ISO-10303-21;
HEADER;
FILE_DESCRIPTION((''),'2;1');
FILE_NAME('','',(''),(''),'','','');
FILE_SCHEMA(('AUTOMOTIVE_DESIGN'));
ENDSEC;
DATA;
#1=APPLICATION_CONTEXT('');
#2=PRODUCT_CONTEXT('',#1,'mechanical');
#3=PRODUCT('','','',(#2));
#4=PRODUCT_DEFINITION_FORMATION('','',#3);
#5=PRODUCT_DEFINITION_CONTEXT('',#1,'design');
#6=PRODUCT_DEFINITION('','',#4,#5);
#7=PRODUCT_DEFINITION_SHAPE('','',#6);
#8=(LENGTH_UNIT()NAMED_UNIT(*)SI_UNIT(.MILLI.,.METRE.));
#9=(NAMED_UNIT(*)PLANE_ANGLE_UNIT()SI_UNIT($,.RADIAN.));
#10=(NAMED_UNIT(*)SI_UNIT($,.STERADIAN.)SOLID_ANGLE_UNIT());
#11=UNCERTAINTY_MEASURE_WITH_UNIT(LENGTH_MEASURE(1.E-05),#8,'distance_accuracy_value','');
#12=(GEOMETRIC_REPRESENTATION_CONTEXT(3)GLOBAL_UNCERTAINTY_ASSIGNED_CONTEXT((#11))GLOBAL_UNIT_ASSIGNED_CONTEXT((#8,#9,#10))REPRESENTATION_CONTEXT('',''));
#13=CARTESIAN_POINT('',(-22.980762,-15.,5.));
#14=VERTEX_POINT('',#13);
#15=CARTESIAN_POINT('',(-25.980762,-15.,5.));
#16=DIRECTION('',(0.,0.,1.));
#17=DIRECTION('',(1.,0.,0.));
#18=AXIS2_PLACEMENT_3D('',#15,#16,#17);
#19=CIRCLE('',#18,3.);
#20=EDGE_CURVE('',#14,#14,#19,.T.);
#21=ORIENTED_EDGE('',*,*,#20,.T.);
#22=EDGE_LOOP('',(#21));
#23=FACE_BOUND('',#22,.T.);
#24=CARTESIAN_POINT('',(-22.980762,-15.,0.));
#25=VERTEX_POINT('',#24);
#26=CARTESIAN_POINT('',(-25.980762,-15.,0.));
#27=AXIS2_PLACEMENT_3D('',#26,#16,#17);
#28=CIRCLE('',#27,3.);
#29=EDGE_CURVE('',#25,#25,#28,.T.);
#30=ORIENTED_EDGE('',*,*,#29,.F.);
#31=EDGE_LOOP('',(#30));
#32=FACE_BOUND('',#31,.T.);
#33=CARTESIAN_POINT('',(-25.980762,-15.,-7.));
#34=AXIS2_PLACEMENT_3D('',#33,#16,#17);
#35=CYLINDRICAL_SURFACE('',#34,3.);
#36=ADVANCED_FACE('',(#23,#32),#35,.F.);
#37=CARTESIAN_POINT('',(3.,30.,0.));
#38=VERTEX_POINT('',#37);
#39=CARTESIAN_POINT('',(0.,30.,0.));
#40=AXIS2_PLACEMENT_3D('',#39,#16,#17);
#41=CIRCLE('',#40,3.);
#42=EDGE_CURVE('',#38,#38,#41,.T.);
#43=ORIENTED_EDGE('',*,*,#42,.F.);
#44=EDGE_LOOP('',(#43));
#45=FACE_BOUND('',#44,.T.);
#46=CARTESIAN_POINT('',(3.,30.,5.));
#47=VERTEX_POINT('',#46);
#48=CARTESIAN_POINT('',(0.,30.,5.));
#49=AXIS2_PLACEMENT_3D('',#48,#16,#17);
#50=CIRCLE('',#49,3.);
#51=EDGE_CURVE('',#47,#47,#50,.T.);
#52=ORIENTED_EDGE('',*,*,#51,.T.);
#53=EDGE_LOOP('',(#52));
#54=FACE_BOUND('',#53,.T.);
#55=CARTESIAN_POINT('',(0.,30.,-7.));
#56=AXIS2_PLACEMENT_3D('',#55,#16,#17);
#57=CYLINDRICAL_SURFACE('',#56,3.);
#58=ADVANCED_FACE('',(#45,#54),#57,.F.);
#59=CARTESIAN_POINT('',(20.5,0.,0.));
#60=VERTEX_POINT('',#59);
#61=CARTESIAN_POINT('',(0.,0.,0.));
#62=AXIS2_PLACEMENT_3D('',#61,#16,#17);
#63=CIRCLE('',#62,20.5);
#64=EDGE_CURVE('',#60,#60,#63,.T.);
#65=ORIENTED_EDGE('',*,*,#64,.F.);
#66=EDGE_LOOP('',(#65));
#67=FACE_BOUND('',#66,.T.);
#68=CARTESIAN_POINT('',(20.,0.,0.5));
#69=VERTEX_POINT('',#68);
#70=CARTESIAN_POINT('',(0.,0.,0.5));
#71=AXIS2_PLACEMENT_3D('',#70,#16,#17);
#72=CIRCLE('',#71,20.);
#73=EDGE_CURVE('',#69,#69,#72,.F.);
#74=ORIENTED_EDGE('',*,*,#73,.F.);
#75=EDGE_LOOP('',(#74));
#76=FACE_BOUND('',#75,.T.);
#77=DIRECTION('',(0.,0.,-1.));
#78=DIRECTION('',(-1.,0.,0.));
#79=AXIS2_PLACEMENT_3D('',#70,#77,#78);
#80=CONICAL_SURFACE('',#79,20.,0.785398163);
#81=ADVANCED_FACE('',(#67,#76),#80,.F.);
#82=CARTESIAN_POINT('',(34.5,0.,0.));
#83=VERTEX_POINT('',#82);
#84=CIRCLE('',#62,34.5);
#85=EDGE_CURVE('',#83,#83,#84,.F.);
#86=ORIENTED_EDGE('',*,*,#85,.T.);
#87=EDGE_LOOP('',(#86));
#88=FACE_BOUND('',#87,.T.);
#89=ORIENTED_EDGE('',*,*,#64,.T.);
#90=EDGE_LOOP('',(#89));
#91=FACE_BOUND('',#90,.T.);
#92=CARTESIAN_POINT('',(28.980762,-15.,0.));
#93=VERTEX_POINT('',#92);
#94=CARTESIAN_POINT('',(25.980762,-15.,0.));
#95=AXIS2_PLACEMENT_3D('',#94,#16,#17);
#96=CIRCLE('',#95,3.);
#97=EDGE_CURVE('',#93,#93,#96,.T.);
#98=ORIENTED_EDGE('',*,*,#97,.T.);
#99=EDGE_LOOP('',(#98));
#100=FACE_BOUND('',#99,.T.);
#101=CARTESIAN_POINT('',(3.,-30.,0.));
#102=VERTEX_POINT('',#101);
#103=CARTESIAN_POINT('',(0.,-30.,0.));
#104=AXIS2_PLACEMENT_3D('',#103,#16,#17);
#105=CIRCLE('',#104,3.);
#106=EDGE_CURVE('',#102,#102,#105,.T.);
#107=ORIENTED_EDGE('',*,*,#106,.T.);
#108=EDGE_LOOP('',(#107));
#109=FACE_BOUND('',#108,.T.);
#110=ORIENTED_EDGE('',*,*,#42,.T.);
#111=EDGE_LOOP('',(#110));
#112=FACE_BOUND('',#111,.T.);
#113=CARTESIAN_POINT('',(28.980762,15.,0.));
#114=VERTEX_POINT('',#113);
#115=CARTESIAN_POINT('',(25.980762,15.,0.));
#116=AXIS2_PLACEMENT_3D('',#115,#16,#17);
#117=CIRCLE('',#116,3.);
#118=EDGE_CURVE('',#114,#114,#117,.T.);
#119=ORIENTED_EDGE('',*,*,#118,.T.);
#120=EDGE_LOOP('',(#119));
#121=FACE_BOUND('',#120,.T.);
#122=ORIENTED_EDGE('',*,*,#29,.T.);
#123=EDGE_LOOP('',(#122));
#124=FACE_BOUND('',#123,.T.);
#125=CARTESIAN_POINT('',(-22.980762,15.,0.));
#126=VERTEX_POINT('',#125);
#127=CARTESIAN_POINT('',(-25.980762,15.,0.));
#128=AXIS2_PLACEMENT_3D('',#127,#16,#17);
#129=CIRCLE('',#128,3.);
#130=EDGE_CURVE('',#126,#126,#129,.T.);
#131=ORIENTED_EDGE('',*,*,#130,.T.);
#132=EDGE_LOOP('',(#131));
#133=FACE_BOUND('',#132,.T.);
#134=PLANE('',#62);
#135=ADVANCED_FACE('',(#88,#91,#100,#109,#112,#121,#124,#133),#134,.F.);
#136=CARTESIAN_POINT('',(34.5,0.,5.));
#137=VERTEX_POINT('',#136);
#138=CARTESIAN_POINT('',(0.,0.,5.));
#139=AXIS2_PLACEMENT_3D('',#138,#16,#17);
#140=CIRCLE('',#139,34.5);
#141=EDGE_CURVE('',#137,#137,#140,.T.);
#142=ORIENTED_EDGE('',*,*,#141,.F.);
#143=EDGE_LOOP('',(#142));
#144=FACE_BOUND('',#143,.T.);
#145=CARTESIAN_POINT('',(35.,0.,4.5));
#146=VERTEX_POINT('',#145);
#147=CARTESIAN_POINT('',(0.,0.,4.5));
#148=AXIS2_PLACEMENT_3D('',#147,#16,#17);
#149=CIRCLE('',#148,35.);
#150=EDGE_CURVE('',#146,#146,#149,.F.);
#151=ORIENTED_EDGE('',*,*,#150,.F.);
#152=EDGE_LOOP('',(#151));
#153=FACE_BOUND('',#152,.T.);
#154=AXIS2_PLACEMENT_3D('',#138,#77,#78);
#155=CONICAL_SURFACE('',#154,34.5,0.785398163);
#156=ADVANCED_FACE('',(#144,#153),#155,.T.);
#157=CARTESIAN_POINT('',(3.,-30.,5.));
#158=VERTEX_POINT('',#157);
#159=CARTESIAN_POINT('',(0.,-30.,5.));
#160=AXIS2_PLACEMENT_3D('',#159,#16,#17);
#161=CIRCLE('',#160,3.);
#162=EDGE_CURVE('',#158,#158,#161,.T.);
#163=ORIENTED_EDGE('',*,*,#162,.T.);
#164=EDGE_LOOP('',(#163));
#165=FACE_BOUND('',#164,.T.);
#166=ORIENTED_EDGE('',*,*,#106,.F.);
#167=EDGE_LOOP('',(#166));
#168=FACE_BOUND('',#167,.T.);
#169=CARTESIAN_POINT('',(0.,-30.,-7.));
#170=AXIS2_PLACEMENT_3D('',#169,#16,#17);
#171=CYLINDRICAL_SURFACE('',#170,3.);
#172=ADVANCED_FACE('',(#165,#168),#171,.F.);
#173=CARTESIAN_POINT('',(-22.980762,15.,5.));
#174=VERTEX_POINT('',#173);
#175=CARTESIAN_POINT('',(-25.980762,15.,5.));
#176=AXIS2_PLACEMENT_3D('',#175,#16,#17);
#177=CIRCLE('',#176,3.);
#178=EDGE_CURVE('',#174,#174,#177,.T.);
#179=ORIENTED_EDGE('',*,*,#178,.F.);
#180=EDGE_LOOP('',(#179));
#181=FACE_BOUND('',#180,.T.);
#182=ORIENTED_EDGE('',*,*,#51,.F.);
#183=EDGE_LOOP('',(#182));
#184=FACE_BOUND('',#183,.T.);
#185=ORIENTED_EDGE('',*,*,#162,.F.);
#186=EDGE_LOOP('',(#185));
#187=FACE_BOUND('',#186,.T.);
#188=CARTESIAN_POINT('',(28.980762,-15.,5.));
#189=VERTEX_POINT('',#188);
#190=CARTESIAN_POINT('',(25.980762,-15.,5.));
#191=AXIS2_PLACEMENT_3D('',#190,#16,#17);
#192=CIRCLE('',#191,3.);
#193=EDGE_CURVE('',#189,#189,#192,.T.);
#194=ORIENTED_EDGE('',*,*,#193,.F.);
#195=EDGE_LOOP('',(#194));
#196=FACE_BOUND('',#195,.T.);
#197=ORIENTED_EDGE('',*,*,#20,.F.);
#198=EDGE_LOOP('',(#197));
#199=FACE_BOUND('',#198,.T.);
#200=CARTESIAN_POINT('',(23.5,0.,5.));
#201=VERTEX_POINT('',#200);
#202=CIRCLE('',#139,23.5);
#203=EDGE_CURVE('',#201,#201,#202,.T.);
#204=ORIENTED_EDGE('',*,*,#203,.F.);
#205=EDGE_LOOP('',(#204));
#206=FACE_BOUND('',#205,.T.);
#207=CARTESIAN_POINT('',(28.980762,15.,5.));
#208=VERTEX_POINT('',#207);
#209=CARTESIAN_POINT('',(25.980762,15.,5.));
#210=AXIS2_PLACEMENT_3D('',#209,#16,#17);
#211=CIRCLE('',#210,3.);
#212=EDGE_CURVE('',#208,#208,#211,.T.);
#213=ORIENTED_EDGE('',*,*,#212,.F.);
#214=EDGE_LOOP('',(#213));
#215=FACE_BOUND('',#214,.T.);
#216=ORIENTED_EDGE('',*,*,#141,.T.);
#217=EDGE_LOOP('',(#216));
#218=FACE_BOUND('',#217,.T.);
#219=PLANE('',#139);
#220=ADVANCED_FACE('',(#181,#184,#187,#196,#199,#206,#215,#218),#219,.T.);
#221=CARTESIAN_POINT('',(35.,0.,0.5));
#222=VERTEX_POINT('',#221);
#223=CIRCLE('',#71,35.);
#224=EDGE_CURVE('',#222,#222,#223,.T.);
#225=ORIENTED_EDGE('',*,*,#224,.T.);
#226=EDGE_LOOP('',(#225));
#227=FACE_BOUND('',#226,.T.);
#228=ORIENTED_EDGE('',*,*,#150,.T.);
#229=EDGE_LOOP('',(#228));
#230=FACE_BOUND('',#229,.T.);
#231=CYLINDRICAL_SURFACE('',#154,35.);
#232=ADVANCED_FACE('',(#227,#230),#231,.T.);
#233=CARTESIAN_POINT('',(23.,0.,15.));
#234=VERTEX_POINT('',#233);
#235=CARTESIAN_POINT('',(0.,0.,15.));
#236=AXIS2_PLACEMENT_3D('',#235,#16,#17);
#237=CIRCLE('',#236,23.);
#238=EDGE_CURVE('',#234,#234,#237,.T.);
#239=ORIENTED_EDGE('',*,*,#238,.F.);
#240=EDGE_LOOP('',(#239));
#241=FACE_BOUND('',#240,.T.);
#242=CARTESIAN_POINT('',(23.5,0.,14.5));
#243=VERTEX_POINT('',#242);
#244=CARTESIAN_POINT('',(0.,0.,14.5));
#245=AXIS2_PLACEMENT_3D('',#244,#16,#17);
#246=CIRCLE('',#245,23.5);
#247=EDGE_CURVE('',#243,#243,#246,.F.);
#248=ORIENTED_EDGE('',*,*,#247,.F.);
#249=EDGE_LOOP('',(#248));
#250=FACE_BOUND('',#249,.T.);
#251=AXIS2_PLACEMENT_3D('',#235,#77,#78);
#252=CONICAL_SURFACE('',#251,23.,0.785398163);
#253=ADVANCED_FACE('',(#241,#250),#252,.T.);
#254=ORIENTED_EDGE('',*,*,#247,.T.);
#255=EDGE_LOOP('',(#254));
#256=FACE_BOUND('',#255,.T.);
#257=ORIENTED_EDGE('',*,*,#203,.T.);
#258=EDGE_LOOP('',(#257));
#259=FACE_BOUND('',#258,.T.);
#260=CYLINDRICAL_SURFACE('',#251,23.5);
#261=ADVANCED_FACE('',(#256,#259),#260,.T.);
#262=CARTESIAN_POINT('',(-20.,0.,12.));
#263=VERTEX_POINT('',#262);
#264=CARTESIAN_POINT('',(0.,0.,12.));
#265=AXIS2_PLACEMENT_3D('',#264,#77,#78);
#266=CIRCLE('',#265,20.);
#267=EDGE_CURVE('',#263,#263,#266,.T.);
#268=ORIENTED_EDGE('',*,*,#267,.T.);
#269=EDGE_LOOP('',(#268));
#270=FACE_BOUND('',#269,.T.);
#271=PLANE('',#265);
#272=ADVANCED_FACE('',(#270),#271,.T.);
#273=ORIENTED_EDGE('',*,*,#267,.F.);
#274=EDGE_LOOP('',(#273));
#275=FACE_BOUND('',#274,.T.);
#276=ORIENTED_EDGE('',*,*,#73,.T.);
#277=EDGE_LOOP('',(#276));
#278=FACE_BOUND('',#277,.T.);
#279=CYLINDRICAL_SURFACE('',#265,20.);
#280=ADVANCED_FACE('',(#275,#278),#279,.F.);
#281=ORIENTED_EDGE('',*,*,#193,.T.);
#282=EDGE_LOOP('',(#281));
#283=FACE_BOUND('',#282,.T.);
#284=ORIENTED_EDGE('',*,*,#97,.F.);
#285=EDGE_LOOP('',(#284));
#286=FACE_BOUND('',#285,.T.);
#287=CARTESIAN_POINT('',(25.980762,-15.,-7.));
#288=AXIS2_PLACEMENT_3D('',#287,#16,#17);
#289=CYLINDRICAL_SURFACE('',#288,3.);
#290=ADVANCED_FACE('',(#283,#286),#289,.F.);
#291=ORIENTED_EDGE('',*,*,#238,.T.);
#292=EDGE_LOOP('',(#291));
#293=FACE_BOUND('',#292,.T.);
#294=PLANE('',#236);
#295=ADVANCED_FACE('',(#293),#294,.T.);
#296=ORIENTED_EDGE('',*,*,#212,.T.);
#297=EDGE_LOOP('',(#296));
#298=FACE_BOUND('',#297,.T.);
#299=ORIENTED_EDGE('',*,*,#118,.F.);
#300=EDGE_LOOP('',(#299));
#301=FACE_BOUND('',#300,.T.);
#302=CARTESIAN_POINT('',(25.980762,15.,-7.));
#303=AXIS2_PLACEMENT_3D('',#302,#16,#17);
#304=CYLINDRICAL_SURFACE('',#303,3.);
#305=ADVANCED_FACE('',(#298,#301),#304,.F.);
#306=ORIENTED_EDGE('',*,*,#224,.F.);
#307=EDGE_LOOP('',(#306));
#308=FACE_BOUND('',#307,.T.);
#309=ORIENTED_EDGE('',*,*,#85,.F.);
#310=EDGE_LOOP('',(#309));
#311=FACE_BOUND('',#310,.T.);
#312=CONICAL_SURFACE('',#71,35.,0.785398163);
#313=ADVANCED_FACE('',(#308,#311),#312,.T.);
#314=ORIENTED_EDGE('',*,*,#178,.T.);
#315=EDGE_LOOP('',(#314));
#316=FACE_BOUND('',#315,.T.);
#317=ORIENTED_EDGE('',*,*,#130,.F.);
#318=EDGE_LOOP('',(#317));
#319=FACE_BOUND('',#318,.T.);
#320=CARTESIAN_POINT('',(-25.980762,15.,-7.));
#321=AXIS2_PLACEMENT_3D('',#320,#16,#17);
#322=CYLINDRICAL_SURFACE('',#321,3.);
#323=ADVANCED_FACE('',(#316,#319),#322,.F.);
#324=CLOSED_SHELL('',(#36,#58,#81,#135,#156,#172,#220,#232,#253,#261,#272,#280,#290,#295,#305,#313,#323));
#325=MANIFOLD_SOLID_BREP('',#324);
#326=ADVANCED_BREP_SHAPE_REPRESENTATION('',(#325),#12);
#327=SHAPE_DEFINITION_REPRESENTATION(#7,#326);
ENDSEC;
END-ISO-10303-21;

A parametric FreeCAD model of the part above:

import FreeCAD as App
import Part
import Sketcher
from FreeCAD import Vector


def edges_at(feature, points):
    """Names of the edges that pass closest to the given points."""
    edges = feature.Shape.Edges
    near = lambda p: min(range(len(edges)), key=lambda i: edges[i].distToShape(Part.Vertex(*p))[0])
    return sorted({f"Edge{near(p) + 1}" for p in points})

doc = App.newDocument("Part")
body = doc.addObject("PartDesign::Body", "Body")

# Sketch on XY plane
sketch1 = doc.addObject("Sketcher::SketchObject", "Sketch")
body.addObject(sketch1)
sketch1.AttachmentSupport = (doc.XY_Plane, [""])
sketch1.MapMode = "FlatFace"
sketch1.addGeometry(Part.Circle(Vector(0, 0, 0), Vector(0, 0, 1), 35), False)
sketch1.addConstraint([
    Sketcher.Constraint("Coincident", 0, 3, -1, 1),
    Sketcher.Constraint("Diameter", 0, 70.0),
])
pad1 = doc.addObject("PartDesign::Pad", "Pad")
body.addObject(pad1)
pad1.Profile = sketch1
pad1.Length = 5

# Sketch on XY plane
sketch2 = doc.addObject("Sketcher::SketchObject", "Sketch001")
body.addObject(sketch2)
sketch2.AttachmentSupport = (doc.XY_Plane, [""])
sketch2.MapMode = "FlatFace"
sketch2.AttachmentOffset = App.Placement(Vector(0, 0, 5), App.Rotation())
sketch2.addGeometry(Part.Circle(Vector(0, 0, 0), Vector(0, 0, 1), 24), False)
sketch2.addConstraint([
    Sketcher.Constraint("Coincident", 0, 3, -1, 1),
    Sketcher.Constraint("Diameter", 0, 47.0),
])
pad2 = doc.addObject("PartDesign::Pad", "Pad001")
body.addObject(pad2)
pad2.Profile = sketch2
pad2.Length = 10

# Sketch on XY plane
sketch3 = doc.addObject("Sketcher::SketchObject", "Sketch002")
body.addObject(sketch3)
sketch3.AttachmentSupport = (doc.XY_Plane, [""])
sketch3.MapMode = "FlatFace"
sketch3.addGeometry(Part.Circle(Vector(0, 0, 0), Vector(0, 0, 1), 20), False)
sketch3.addConstraint([
    Sketcher.Constraint("Coincident", 0, 3, -1, 1),
    Sketcher.Constraint("Diameter", 0, 40.0),
])
pocket1 = doc.addObject("PartDesign::Pocket", "Pocket")
body.addObject(pocket1)
pocket1.Profile = sketch3
pocket1.Length = 12
pocket1.Reversed = True

# Sketch on XY plane
sketch4 = doc.addObject("Sketcher::SketchObject", "Sketch003")
body.addObject(sketch4)
sketch4.AttachmentSupport = (doc.XY_Plane, [""])
sketch4.MapMode = "FlatFace"
sketch4.AttachmentOffset = App.Placement(Vector(0, 0, 5), App.Rotation())
sketch4.addGeometry([
    Part.Circle(Vector(26, 15, 0), Vector(0, 0, 1), 3),  # 0
    Part.Circle(Vector(0, 30, 0), Vector(0, 0, 1), 3),  # 1
    Part.Circle(Vector(26, -15, 0), Vector(0, 0, 1), 3),  # 2
    Part.Circle(Vector(0, -30, 0), Vector(0, 0, 1), 3),  # 3
    Part.Circle(Vector(-26, -15, 0), Vector(0, 0, 1), 3),  # 4
    Part.Circle(Vector(-26, 15, 0), Vector(0, 0, 1), 3),  # 5
], False)
sketch4.addConstraint([
    Sketcher.Constraint("Equal", 0, 1),
    Sketcher.Constraint("Equal", 1, 2),
    Sketcher.Constraint("Equal", 2, 3),
    Sketcher.Constraint("Equal", 3, 4),
    Sketcher.Constraint("Equal", 4, 5),
    Sketcher.Constraint("Symmetric", 1, 3, 3, 3, -1, 1),
    Sketcher.Constraint("Symmetric", 0, 3, 4, 3, -1, 1),
    Sketcher.Constraint("Symmetric", 2, 3, 5, 3, -1, 1),
    Sketcher.Constraint("Symmetric", 2, 3, 4, 3, -2),
    Sketcher.Constraint("PointOnObject", 1, 3, -2),
    Sketcher.Constraint("Diameter", 0, 6.0),
    Sketcher.Constraint("DistanceY", -1, 1, 0, 3, 15.0),
    Sketcher.Constraint("DistanceY", -1, 1, 1, 3, 30.0),
    Sketcher.Constraint("DistanceX", -1, 1, 0, 3, 25.980762),
])
pocket2 = doc.addObject("PartDesign::Pocket", "Pocket001")
body.addObject(pocket2)
pocket2.Profile = sketch4
pocket2.Length = 12
doc.recompute()

chamfer = doc.addObject("PartDesign::Chamfer", "Chamfer")
body.addObject(chamfer)
chamfer.Base = (pocket2, edges_at(pocket2, [
    (20, 0, 0),
    (-35, 0, 0),
    (-35, 0, 5),
    (-23.5, 0, 15),
]))
chamfer.Size = 0.5

doc.recompute()
